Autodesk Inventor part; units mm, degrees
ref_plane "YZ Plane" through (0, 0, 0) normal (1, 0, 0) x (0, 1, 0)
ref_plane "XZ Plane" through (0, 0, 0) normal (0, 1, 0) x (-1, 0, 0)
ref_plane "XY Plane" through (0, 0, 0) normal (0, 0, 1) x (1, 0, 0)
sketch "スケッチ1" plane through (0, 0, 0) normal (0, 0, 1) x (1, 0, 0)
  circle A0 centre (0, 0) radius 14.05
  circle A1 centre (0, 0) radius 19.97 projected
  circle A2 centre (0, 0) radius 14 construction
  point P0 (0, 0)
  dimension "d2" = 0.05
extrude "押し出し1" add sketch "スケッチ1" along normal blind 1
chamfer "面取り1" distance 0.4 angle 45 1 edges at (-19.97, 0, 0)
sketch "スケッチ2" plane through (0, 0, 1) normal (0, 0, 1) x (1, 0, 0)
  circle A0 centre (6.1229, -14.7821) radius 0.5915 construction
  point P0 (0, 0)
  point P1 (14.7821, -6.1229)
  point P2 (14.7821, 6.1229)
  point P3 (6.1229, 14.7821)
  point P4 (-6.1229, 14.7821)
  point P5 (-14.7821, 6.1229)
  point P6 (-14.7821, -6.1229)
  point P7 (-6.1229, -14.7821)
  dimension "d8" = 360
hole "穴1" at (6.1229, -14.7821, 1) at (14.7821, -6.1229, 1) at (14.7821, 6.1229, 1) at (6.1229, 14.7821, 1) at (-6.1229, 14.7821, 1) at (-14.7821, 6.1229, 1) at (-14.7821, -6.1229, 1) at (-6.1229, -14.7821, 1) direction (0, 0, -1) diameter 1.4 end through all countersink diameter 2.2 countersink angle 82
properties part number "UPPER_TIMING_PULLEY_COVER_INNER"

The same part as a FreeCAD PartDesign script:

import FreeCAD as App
import Part
import Sketcher
Q = App.Units.Quantity


def edges_at(feature, points):
    """Names of the edges that pass closest to the given points."""
    edges = feature.Shape.Edges
    near = lambda p: min(range(len(edges)), key=lambda i: edges[i].distToShape(Part.Vertex(*p))[0])
    return sorted({f"Edge{near(p) + 1}" for p in points})

doc = App.newDocument("Part")
params = doc.addObject("Spreadsheet::Sheet", "Params")
for row, (alias, value) in enumerate([
    ("sketch1_diameter", "28.1 mm"),
    ("sketch1_diameter2", "39.94 mm"),
    ("pad1_length", "1 mm"),
    ("chamfer_size", "0.4 mm"),
    ("sketch2_diameter", "1.4 mm"),
    ("hole_diameter", "1.4 mm"),
    ("hole_csink_diameter", "2.2 mm"),
], start=1):
    params.set(f"A{row}", alias)
    params.set(f"B{row}", "=" + value)
    params.setAlias(f"B{row}", alias)

body = doc.addObject("PartDesign::Body", "Body")

sketch1 = body.newObject("Sketcher::SketchObject", "Sketch")
sketch1.AttachmentSupport = (doc.getObject("XY_Plane"), [""])
sketch1.MapMode = "FlatFace"
sketch1.addGeometry([
    Part.Circle(App.Vector(0, 0, 0), App.Vector(0, 0, 1), 20),
    Part.Circle(App.Vector(0, 0, 0), App.Vector(0, 0, 1), 14),
], False)
sketch1.addConstraint([
    Sketcher.Constraint("Coincident", 0, 3, -1, 1),
    Sketcher.Constraint("Coincident", 1, 3, -1, 1),
    Sketcher.Constraint("Diameter", 1, Q("28.1 mm")),
    Sketcher.Constraint("Diameter", 0, Q("39.94 mm")),
])
sketch1.setExpression("Constraints[2]", "Params.sketch1_diameter")
sketch1.setExpression("Constraints[3]", "Params.sketch1_diameter2")
pad1 = body.newObject("PartDesign::Pad", "Pad")
pad1.Profile = sketch1
pad1.setExpression("Length", "Params.pad1_length")
doc.recompute()

chamfer = body.newObject("PartDesign::Chamfer", "Chamfer")
chamfer.Base = (pad1, edges_at(pad1, [(-19.97, 0, 0)]))
chamfer.setExpression("Size", "Params.chamfer_size")

sketch2 = body.newObject("Sketcher::SketchObject", "Sketch001")
sketch2.AttachmentSupport = (doc.getObject("XY_Plane"), [""])
sketch2.MapMode = "FlatFace"
sketch2.AttachmentOffset = App.Placement(App.Vector(0, 0, 1), App.Rotation())
sketch2.addGeometry([
    Part.Circle(App.Vector(6.1, -14.8, 0), App.Vector(0, 0, 1), 0.7),
    Part.Circle(App.Vector(14.8, -6.1, 0), App.Vector(0, 0, 1), 0.7),
    Part.Circle(App.Vector(14.8, 6.1, 0), App.Vector(0, 0, 1), 0.7),
    Part.Circle(App.Vector(6.1, 14.8, 0), App.Vector(0, 0, 1), 0.7),
    Part.Circle(App.Vector(-6.1, 14.8, 0), App.Vector(0, 0, 1), 0.7),
    Part.Circle(App.Vector(-14.8, 6.1, 0), App.Vector(0, 0, 1), 0.7),
    Part.Circle(App.Vector(-14.8, -6.1, 0), App.Vector(0, 0, 1), 0.7),
    Part.Circle(App.Vector(-6.1, -14.8, 0), App.Vector(0, 0, 1), 0.7),
], False)
sketch2.addConstraint([
    Sketcher.Constraint("Equal", 0, 1),
    Sketcher.Constraint("Equal", 1, 2),
    Sketcher.Constraint("Equal", 2, 3),
    Sketcher.Constraint("Equal", 3, 4),
    Sketcher.Constraint("Equal", 4, 5),
    Sketcher.Constraint("Equal", 5, 6),
    Sketcher.Constraint("Equal", 6, 7),
    Sketcher.Constraint("Symmetric", 0, 3, 4, 3, -1, 1),
    Sketcher.Constraint("Symmetric", 1, 3, 5, 3, -1, 1),
    Sketcher.Constraint("Symmetric", 2, 3, 6, 3, -1, 1),
    Sketcher.Constraint("Symmetric", 3, 3, 7, 3, -1, 1),
    Sketcher.Constraint("Symmetric", 3, 3, 4, 3, -2),
    Sketcher.Constraint("Symmetric", 2, 3, 5, 3, -2),
    Sketcher.Constraint("Diameter", 0, Q("1.4 mm")),
    Sketcher.Constraint("DistanceX", -1, 1, 0, 3, Q("6.123 mm")),
    Sketcher.Constraint("DistanceY", 0, 3, -1, 1, Q("14.782 mm")),
    Sketcher.Constraint("DistanceX", -1, 1, 1, 3, Q("14.782 mm")),
    Sketcher.Constraint("DistanceY", 1, 3, -1, 1, Q("6.123 mm")),
])
sketch2.setExpression("Constraints[13]", "Params.sketch2_diameter")
doc.recompute()
hole = body.newObject("PartDesign::Hole", "Hole")
hole.Profile = sketch2
hole.ThreadType = "None"
hole.setExpression("Diameter", "Params.hole_diameter")
hole.DepthType = "ThroughAll"
hole.HoleCutType = "Countersink"
hole.setExpression("HoleCutDiameter", "Params.hole_csink_diameter")
hole.HoleCutCountersinkAngle = 82

doc.recompute()
